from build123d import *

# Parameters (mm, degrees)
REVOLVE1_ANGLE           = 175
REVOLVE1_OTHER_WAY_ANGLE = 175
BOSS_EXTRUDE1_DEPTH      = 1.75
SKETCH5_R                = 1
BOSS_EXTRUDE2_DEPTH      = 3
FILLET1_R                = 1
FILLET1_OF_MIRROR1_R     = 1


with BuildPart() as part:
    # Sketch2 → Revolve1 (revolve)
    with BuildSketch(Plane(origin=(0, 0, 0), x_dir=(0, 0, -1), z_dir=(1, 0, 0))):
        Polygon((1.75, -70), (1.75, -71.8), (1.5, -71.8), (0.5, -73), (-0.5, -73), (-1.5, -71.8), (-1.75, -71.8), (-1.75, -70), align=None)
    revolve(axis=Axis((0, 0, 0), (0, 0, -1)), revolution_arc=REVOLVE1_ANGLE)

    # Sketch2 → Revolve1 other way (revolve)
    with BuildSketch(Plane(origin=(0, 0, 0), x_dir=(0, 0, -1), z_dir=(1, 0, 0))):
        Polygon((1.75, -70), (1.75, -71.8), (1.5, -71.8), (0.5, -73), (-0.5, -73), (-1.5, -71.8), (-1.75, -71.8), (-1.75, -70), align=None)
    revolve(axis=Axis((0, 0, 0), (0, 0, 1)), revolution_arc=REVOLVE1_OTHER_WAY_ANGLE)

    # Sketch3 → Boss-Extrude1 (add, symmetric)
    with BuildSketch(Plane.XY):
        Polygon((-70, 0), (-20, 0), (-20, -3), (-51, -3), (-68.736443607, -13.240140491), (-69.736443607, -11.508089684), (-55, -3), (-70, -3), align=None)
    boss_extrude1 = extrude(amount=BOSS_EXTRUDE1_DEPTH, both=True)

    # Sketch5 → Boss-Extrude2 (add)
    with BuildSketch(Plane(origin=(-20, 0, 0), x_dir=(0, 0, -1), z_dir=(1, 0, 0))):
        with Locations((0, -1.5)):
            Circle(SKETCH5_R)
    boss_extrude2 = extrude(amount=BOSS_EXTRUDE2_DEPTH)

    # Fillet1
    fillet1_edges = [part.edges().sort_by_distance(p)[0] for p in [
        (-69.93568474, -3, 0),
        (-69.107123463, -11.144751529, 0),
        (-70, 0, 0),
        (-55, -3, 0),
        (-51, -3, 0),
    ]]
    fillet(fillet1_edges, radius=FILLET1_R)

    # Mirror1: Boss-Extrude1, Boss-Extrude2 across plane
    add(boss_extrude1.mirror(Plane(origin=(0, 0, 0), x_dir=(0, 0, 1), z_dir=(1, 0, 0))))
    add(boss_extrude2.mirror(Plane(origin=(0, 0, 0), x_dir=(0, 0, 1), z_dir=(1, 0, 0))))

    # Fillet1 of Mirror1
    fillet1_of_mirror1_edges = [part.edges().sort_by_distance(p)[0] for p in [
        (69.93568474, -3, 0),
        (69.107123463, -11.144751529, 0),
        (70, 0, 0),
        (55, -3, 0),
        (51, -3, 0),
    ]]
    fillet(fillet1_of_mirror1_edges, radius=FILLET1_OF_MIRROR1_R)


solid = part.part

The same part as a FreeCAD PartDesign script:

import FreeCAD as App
import Part
import Sketcher

V = App.Vector
Q = App.Units.Quantity


def edges_at(feature, points):
    """Names of the edges that pass closest to the given points."""
    edges = feature.Shape.Edges
    near = lambda p: min(range(len(edges)), key=lambda i: edges[i].distToShape(Part.Vertex(*p))[0])
    return sorted({f"Edge{near(p) + 1}" for p in points})

doc = App.newDocument("Part")
body = doc.addObject("PartDesign::Body", "Body")

sketch1 = doc.addObject("Sketcher::SketchObject", "Sketch")
body.addObject(sketch1)
sketch1.AttachmentSupport = (doc.YZ_Plane, [""])
sketch1.MapMode = "FlatFace"
sketch1.addGeometry([
    Part.LineSegment(V(-71.8, -1.75, 0), V(-70, -1.75, 0)),
    Part.LineSegment(V(-70, -1.75, 0), V(-70, 1.75, 0)),
    Part.LineSegment(V(-70, 1.75, 0), V(-71.8, 1.75, 0)),
    Part.LineSegment(V(-71.8, 1.75, 0), V(-71.8, 1.5, 0)),
    Part.LineSegment(V(-71.8, 1.5, 0), V(-73, 0.5, 0)),
    Part.LineSegment(V(-73, 0.5, 0), V(-73, -0.5, 0)),
    Part.LineSegment(V(-73, -0.5, 0), V(-71.8, -1.5, 0)),
    Part.LineSegment(V(-71.8, -1.5, 0), V(-71.8, -1.75, 0)),
], False)
sketch1.addConstraint([
    Sketcher.Constraint("Coincident", 0, 2, 1, 1),
    Sketcher.Constraint("Coincident", 1, 2, 2, 1),
    Sketcher.Constraint("Coincident", 2, 2, 3, 1),
    Sketcher.Constraint("Coincident", 3, 2, 4, 1),
    Sketcher.Constraint("Coincident", 4, 2, 5, 1),
    Sketcher.Constraint("Coincident", 5, 2, 6, 1),
    Sketcher.Constraint("Coincident", 6, 2, 7, 1),
    Sketcher.Constraint("Coincident", 7, 2, 0, 1),
    Sketcher.Constraint("Horizontal", 0),
    Sketcher.Constraint("Vertical", 1),
    Sketcher.Constraint("Horizontal", 2),
    Sketcher.Constraint("Vertical", 3),
    Sketcher.Constraint("Vertical", 5),
    Sketcher.Constraint("Vertical", 7),
    Sketcher.Constraint("Symmetric", 3, 2, 6, 2, -1),
    Sketcher.Constraint("Equal", 3, 7),
    Sketcher.Constraint("Equal", 4, 6),
    Sketcher.Constraint("DistanceY", 5, 2, 5, 1, Q("1 mm")),
    Sketcher.Constraint("DistanceX", 0, 1, 0, 2, Q("1.8 mm")),
    Sketcher.Constraint("DistanceY", 1, 1, 1, 2, Q("3.5 mm")),
    Sketcher.Constraint("DistanceX", 0, 2, -1, 1, Q("70 mm")),
    Sketcher.Constraint("DistanceX", 4, 2, -1, 1, Q("73 mm")),
    Sketcher.Constraint("DistanceY", 4, 2, 3, 2, Q("1 mm")),
])
revolution = doc.addObject("PartDesign::Revolution", "Revolution")
body.addObject(revolution)
revolution.Profile = sketch1
revolution.ReferenceAxis = (sketch1, ["V_Axis"])
revolution.Angle = 175
revolution.Reversed = True

sketch2 = doc.addObject("Sketcher::SketchObject", "Sketch001")
body.addObject(sketch2)
sketch2.AttachmentSupport = (doc.YZ_Plane, [""])
sketch2.MapMode = "FlatFace"
sketch2.addGeometry([
    Part.LineSegment(V(-71.8, -1.75, 0), V(-70, -1.75, 0)),
    Part.LineSegment(V(-70, -1.75, 0), V(-70, 1.75, 0)),
    Part.LineSegment(V(-70, 1.75, 0), V(-71.8, 1.75, 0)),
    Part.LineSegment(V(-71.8, 1.75, 0), V(-71.8, 1.5, 0)),
    Part.LineSegment(V(-71.8, 1.5, 0), V(-73, 0.5, 0)),
    Part.LineSegment(V(-73, 0.5, 0), V(-73, -0.5, 0)),
    Part.LineSegment(V(-73, -0.5, 0), V(-71.8, -1.5, 0)),
    Part.LineSegment(V(-71.8, -1.5, 0), V(-71.8, -1.75, 0)),
], False)
sketch2.addConstraint([
    Sketcher.Constraint("Coincident", 0, 2, 1, 1),
    Sketcher.Constraint("Coincident", 1, 2, 2, 1),
    Sketcher.Constraint("Coincident", 2, 2, 3, 1),
    Sketcher.Constraint("Coincident", 3, 2, 4, 1),
    Sketcher.Constraint("Coincident", 4, 2, 5, 1),
    Sketcher.Constraint("Coincident", 5, 2, 6, 1),
    Sketcher.Constraint("Coincident", 6, 2, 7, 1),
    Sketcher.Constraint("Coincident", 7, 2, 0, 1),
    Sketcher.Constraint("Horizontal", 0),
    Sketcher.Constraint("Vertical", 1),
    Sketcher.Constraint("Horizontal", 2),
    Sketcher.Constraint("Vertical", 3),
    Sketcher.Constraint("Vertical", 5),
    Sketcher.Constraint("Vertical", 7),
    Sketcher.Constraint("Symmetric", 3, 2, 6, 2, -1),
    Sketcher.Constraint("Equal", 3, 7),
    Sketcher.Constraint("Equal", 4, 6),
    Sketcher.Constraint("DistanceY", 5, 2, 5, 1, Q("1 mm")),
    Sketcher.Constraint("DistanceX", 0, 1, 0, 2, Q("1.8 mm")),
    Sketcher.Constraint("DistanceY", 1, 1, 1, 2, Q("3.5 mm")),
    Sketcher.Constraint("DistanceX", 0, 2, -1, 1, Q("70 mm")),
    Sketcher.Constraint("DistanceX", 4, 2, -1, 1, Q("73 mm")),
    Sketcher.Constraint("DistanceY", 4, 2, 3, 2, Q("1 mm")),
])
revolution2 = doc.addObject("PartDesign::Revolution", "Revolution001")
body.addObject(revolution2)
revolution2.Profile = sketch2
revolution2.ReferenceAxis = (sketch2, ["V_Axis"])
revolution2.Angle = 175

sketch3 = doc.addObject("Sketcher::SketchObject", "Sketch002")
body.addObject(sketch3)
sketch3.AttachmentSupport = (doc.XY_Plane, [""])
sketch3.MapMode = "FlatFace"
sketch3.addGeometry([
    Part.LineSegment(V(-20, 0, 0), V(-70, 0, 0)),
    Part.LineSegment(V(-70, 0, 0), V(-70, -3, 0)),
    Part.LineSegment(V(-70, -3, 0), V(-55, -3, 0)),
    Part.LineSegment(V(-55, -3, 0), V(-69.736444, -11.50809, 0)),
    Part.LineSegment(V(-69.736444, -11.50809, 0), V(-68.736444, -13.24014, 0)),
    Part.LineSegment(V(-68.736444, -13.24014, 0), V(-51, -3, 0)),
    Part.LineSegment(V(-51, -3, 0), V(-20, -3, 0)),
    Part.LineSegment(V(-20, -3, 0), V(-20, 0, 0)),
], False)
sketch3.addConstraint([
    Sketcher.Constraint("Coincident", 0, 2, 1, 1),
    Sketcher.Constraint("Coincident", 1, 2, 2, 1),
    Sketcher.Constraint("Coincident", 2, 2, 3, 1),
    Sketcher.Constraint("Coincident", 3, 2, 4, 1),
    Sketcher.Constraint("Coincident", 4, 2, 5, 1),
    Sketcher.Constraint("Coincident", 5, 2, 6, 1),
    Sketcher.Constraint("Coincident", 6, 2, 7, 1),
    Sketcher.Constraint("Coincident", 7, 2, 0, 1),
    Sketcher.Constraint("Horizontal", 0),
    Sketcher.Constraint("Vertical", 1),
    Sketcher.Constraint("Horizontal", 2),
    Sketcher.Constraint("Horizontal", 6),
    Sketcher.Constraint("Vertical", 7),
    Sketcher.Constraint("PointOnObject", 0, 2, -1),
    Sketcher.Constraint("Perpendicular", 3, 4),
    Sketcher.Constraint("Perpendicular", 4, 5),
    Sketcher.Constraint("Horizontal", 2, 2, 5, 2),
    Sketcher.Constraint("DistanceX", 0, 2, 0, 1, Q("50 mm")),
    Sketcher.Constraint("DistanceX", 2, 1, 2, 2, Q("15 mm")),
    Sketcher.Constraint("DistanceX", 6, 1, 6, 2, Q("31 mm")),
    Sketcher.Constraint("DistanceY", 1, 2, 1, 1, Q("3 mm")),
    Sketcher.Constraint("Angle", 3, Q("-150 deg")),
    Sketcher.Constraint("DistanceX", 0, 2, -1, 1, Q("70 mm")),
    Sketcher.Constraint("Distance", 3, Q("17.016179 mm")),
])
pad1 = doc.addObject("PartDesign::Pad", "Pad")
body.addObject(pad1)
pad1.Profile = sketch3
pad1.Length = 3.5
pad1.Midplane = True

sketch4 = doc.addObject("Sketcher::SketchObject", "Sketch003")
body.addObject(sketch4)
sketch4.AttachmentSupport = (doc.YZ_Plane, [""])
sketch4.MapMode = "FlatFace"
sketch4.AttachmentOffset = App.Placement(V(0, 0, -20), App.Rotation())
sketch4.addGeometry(Part.Circle(V(-1.5, 0, 0), V(0, 0, 1), 1), False)
sketch4.addConstraint([
    Sketcher.Constraint("PointOnObject", 0, 3, -1),
    Sketcher.Constraint("Diameter", 0, Q("2 mm")),
    Sketcher.Constraint("DistanceX", 0, 3, -1, 1, Q("1.5 mm")),
])
pad2 = doc.addObject("PartDesign::Pad", "Pad001")
body.addObject(pad2)
pad2.Profile = sketch4
pad2.Length = 3
doc.recompute()

fillet = doc.addObject("PartDesign::Fillet", "Fillet")
body.addObject(fillet)
fillet.Base = (pad2, edges_at(pad2, [
    (-69.936, -3, 0),
    (-69.107, -11.145, 0),
    (-70, 0, 0),
    (-55, -3, 0),
    (-51, -3, 0),
]))
fillet.Radius = 1
doc.recompute()

mirrored = doc.addObject("PartDesign::Mirrored", "Mirrored")
body.addObject(mirrored)
mirrored.Originals = [pad1, pad2]
mirrored.MirrorPlane = (doc.YZ_Plane, [""])
body.Tip = mirrored
doc.recompute()

fillet2 = doc.addObject("PartDesign::Fillet", "Fillet001")
body.addObject(fillet2)
fillet2.Base = (mirrored, edges_at(mirrored, [
    (69.936, -3, 0),
    (69.107, -11.145, 0),
    (70, 0, 0),
    (55, -3, 0),
    (51, -3, 0),
]))
fillet2.Radius = 1

doc.recompute()
